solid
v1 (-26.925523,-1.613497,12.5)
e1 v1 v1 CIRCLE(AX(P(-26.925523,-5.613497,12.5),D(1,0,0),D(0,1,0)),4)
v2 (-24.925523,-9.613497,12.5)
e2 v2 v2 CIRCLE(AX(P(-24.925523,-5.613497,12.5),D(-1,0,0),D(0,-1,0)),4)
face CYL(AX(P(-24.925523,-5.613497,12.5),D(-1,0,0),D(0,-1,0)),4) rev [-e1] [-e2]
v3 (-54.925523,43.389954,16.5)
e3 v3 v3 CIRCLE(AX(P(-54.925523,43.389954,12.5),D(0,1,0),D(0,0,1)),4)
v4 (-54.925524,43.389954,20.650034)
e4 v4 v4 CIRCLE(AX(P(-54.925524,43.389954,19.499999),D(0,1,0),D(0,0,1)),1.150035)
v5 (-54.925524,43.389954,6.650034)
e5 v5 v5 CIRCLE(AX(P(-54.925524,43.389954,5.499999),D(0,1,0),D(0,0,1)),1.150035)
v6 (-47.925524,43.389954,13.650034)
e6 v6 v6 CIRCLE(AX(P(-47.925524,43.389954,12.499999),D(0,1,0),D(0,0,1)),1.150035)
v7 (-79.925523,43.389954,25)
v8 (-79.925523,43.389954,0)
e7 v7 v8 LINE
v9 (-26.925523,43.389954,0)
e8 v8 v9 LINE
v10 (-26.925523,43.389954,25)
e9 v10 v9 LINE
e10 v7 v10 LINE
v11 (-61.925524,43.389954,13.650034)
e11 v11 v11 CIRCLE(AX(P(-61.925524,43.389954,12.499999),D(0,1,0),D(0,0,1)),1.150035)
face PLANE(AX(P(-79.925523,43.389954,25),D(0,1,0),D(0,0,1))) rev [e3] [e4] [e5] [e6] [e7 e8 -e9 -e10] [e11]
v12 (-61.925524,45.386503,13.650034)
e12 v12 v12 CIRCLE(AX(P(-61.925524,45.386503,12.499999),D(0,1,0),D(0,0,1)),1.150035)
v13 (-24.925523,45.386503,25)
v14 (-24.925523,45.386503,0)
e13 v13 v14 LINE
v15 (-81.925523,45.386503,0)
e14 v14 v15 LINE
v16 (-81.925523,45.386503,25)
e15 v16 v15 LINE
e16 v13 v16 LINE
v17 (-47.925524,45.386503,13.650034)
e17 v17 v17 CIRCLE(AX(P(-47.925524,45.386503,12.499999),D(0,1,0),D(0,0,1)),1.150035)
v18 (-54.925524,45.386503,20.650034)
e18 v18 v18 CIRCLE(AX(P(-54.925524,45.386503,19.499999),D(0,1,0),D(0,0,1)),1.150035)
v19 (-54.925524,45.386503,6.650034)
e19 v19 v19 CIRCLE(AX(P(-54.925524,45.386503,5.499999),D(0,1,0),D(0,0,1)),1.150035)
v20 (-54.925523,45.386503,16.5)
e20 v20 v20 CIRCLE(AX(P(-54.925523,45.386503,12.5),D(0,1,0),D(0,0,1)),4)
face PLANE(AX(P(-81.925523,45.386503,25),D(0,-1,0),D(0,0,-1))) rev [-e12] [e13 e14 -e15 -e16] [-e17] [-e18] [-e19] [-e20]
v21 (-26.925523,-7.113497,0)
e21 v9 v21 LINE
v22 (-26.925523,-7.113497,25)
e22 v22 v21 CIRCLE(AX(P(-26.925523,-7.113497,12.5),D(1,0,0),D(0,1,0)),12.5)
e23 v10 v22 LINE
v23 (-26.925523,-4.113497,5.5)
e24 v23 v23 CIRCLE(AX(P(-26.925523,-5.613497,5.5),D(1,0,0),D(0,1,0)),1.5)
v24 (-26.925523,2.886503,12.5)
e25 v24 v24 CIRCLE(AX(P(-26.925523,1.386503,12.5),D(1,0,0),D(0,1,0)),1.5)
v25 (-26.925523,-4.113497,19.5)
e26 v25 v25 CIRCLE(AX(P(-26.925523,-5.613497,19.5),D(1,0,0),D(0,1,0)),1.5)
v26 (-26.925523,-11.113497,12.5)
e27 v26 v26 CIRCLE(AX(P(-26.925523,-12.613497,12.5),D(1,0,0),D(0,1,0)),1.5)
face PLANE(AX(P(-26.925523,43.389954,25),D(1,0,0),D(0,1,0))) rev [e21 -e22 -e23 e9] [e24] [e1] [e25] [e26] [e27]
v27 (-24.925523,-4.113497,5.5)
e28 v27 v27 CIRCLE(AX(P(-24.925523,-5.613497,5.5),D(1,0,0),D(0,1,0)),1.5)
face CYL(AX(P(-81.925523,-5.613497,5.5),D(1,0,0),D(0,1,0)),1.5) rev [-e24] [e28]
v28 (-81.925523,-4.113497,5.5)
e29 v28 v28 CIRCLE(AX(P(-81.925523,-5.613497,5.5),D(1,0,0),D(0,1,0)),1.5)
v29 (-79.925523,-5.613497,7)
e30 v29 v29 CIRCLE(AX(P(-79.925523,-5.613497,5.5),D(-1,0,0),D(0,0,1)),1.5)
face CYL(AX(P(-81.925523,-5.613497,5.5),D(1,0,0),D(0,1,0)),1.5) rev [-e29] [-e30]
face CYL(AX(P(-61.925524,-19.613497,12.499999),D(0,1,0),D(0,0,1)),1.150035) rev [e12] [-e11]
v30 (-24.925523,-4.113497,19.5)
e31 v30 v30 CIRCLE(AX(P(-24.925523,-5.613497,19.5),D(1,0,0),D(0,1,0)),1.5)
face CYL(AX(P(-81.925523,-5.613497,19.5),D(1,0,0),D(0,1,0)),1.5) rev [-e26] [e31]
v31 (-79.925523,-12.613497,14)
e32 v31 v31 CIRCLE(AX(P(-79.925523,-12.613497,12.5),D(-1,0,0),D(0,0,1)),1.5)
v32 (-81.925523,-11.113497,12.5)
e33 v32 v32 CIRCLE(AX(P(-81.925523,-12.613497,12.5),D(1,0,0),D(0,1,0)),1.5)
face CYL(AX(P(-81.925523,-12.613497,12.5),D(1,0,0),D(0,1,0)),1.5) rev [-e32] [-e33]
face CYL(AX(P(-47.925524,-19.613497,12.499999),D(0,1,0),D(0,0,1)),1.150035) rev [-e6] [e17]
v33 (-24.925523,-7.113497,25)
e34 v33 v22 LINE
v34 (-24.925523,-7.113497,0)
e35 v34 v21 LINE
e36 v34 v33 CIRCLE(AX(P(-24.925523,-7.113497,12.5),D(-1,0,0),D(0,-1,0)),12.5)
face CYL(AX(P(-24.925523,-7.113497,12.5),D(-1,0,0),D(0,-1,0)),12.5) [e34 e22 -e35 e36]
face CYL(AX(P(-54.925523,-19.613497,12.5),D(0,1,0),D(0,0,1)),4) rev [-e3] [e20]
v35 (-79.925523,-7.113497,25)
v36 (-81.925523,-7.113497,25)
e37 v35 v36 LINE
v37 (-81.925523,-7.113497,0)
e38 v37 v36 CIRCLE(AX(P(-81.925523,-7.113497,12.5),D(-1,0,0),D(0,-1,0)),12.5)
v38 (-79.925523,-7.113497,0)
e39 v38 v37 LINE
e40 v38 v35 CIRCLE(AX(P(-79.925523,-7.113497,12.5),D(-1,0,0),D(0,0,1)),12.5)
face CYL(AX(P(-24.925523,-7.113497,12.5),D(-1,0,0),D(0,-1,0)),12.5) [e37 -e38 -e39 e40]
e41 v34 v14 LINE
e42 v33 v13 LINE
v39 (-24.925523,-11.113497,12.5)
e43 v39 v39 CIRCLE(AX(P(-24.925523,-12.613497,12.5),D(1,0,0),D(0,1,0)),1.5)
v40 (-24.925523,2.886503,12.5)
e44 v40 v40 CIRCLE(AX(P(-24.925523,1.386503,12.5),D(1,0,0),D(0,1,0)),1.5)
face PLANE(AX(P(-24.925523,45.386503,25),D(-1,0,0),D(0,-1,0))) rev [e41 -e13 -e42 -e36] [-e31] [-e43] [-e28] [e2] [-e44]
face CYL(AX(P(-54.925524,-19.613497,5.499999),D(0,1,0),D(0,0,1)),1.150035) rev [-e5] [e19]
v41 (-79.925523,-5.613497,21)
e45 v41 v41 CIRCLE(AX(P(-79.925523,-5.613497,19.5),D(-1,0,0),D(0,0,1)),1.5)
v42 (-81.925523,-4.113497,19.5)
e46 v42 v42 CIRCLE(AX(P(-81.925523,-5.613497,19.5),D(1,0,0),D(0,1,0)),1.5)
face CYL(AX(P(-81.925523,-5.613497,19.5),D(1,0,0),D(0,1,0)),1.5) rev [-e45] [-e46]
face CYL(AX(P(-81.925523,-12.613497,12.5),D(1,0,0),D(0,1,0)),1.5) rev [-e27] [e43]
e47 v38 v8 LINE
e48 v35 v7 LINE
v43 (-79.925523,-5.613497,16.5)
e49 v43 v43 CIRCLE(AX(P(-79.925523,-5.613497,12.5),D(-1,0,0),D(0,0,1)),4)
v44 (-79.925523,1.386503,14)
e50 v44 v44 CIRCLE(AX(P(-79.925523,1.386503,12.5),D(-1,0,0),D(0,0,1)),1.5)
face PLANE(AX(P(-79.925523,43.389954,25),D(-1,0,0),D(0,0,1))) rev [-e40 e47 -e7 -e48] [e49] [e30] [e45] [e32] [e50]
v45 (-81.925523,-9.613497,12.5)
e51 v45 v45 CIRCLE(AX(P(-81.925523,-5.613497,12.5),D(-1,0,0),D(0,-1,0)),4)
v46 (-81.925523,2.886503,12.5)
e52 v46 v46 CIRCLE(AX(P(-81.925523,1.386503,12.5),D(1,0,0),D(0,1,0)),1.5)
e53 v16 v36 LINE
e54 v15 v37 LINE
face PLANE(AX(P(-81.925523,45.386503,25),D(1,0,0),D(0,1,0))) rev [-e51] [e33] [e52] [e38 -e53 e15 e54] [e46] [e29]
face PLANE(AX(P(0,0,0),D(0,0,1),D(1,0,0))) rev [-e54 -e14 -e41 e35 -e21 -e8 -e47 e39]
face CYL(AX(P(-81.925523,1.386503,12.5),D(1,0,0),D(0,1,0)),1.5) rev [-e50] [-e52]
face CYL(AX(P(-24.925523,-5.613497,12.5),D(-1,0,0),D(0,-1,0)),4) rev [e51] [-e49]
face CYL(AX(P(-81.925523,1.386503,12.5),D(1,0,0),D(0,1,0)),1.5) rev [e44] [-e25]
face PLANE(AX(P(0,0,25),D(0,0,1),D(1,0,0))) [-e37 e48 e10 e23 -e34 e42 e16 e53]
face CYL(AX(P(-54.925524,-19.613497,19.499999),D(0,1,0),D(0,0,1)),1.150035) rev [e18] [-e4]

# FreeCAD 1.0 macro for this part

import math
import FreeCAD as App
import Part
import Sketcher

V = App.Vector

doc = App.newDocument("Part")
body = doc.addObject("PartDesign::Body", "Body")

sketch1 = body.newObject("Sketcher::SketchObject", "Sketch")
sketch1.AttachmentSupport = (doc.getObject("XY_Plane"), [""])
sketch1.MapMode = "FlatFace"
sketch1.addGeometry(Part.LineSegment(V(-24.9, 45.4, 0), V(-81.9, 45.4, 0)), False)
sketch1.addGeometry(Part.LineSegment(V(-81.9, 45.4, 0), V(-81.9, -19.6, 0)), False)
sketch1.addGeometry(Part.LineSegment(V(-81.9, -19.6, 0), V(-79.9, -19.6, 0)), False)
sketch1.addGeometry(Part.LineSegment(V(-79.9, -19.6, 0), V(-79.9, 43.4, 0)), False)
sketch1.addGeometry(Part.LineSegment(V(-79.9, 43.4, 0), V(-26.9, 43.4, 0)), False)
sketch1.addGeometry(Part.LineSegment(V(-26.9, 43.4, 0), V(-26.9, -19.6, 0)), False)
sketch1.addGeometry(Part.LineSegment(V(-26.9, -19.6, 0), V(-24.9, -19.6, 0)), False)
sketch1.addGeometry(Part.LineSegment(V(-24.9, -19.6, 0), V(-24.9, 45.4, 0)), False)
sketch1.addConstraint(Sketcher.Constraint("Coincident", 0, 2, 1, 1))
sketch1.addConstraint(Sketcher.Constraint("Coincident", 1, 2, 2, 1))
sketch1.addConstraint(Sketcher.Constraint("Coincident", 2, 2, 3, 1))
sketch1.addConstraint(Sketcher.Constraint("Coincident", 3, 2, 4, 1))
sketch1.addConstraint(Sketcher.Constraint("Coincident", 4, 2, 5, 1))
sketch1.addConstraint(Sketcher.Constraint("Coincident", 5, 2, 6, 1))
sketch1.addConstraint(Sketcher.Constraint("Coincident", 6, 2, 7, 1))
sketch1.addConstraint(Sketcher.Constraint("Coincident", 7, 2, 0, 1))
sketch1.addConstraint(Sketcher.Constraint("Horizontal", 0))
sketch1.addConstraint(Sketcher.Constraint("Vertical", 1))
sketch1.addConstraint(Sketcher.Constraint("Horizontal", 2))
sketch1.addConstraint(Sketcher.Constraint("Vertical", 3))
sketch1.addConstraint(Sketcher.Constraint("Horizontal", 4))
sketch1.addConstraint(Sketcher.Constraint("Vertical", 5))
sketch1.addConstraint(Sketcher.Constraint("Horizontal", 6))
sketch1.addConstraint(Sketcher.Constraint("Vertical", 7))
sketch1.addConstraint(Sketcher.Constraint("Horizontal", 2, 2, 5, 2))
sketch1.addConstraint(Sketcher.Constraint("Equal", 2, 6))
sketch1.addConstraint(Sketcher.Constraint("DistanceX", 0, 2, 0, 1, 57.0))
sketch1.addConstraint(Sketcher.Constraint("DistanceX", 2, 1, 2, 2, 2.0))
sketch1.addConstraint(Sketcher.Constraint("DistanceY", 1, 2, 1, 1, 65.0))
sketch1.addConstraint(Sketcher.Constraint("DistanceY", 3, 1, 3, 2, 63.003451))
sketch1.addConstraint(Sketcher.Constraint("DistanceX", 0, 2, -1, 1, 81.925523))
sketch1.addConstraint(Sketcher.Constraint("DistanceY", -1, 1, 0, 2, 45.386503))
pad1 = body.newObject("PartDesign::Pad", "Pad")
pad1.Profile = sketch1
pad1.Length = 25

sketch2 = body.newObject("Sketcher::SketchObject", "Sketch001")
sketch2.AttachmentSupport = (doc.getObject("XZ_Plane"), [""])
sketch2.MapMode = "FlatFace"
sketch2.AttachmentOffset = App.Placement(V(0, 0, -45.386503), App.Rotation())
sketch2.addGeometry(Part.Circle(V(-54.9, 12.5, 0), V(0, 0, 1), 4), False)
sketch2.addConstraint(Sketcher.Constraint("Diameter", 0, 8.0))
sketch2.addConstraint(Sketcher.Constraint("DistanceY", -1, 1, 0, 3, 12.5))
sketch2.addConstraint(Sketcher.Constraint("DistanceX", 0, 3, -1, 1, 54.925523))
pocket1 = body.newObject("PartDesign::Pocket", "Pocket")
pocket1.Profile = sketch2
pocket1.Type = "ThroughAll"
pocket1.Reversed = True

sketch3 = body.newObject("Sketcher::SketchObject", "Sketch002")
sketch3.AttachmentSupport = (doc.getObject("YZ_Plane"), [""])
sketch3.MapMode = "FlatFace"
sketch3.AttachmentOffset = App.Placement(V(0, 0, -81.925523), App.Rotation())
sketch3.addGeometry(Part.Circle(V(-5.6, 12.5, 0), V(0, 0, 1), 4), False)
sketch3.addConstraint(Sketcher.Constraint("Diameter", 0, 8.0))
sketch3.addConstraint(Sketcher.Constraint("DistanceY", -1, 1, 0, 3, 12.5))
sketch3.addConstraint(Sketcher.Constraint("DistanceX", 0, 3, -1, 1, 5.613497))
pocket2 = body.newObject("PartDesign::Pocket", "Pocket001")
pocket2.Profile = sketch3
pocket2.Type = "ThroughAll"
pocket2.Reversed = True

sketch4 = body.newObject("Sketcher::SketchObject", "Sketch003")
sketch4.AttachmentSupport = (doc.getObject("YZ_Plane"), [""])
sketch4.MapMode = "FlatFace"
sketch4.AttachmentOffset = App.Placement(V(0, 0, -81.925523), App.Rotation())
sketch4.addGeometry(Part.LineSegment(V(-20, 0, 0), V(-20, 12, 0)), False)
sketch4.addGeometry(Part.ArcOfCircle(Part.Circle(V(-7, 12, 0), V(0, 0, 1), 12), math.radians(180), math.radians(270)), False)
sketch4.addGeometry(Part.LineSegment(V(-7, 0, 0), V(-20, 0, 0)), False)
sketch4.addGeometry(Part.LineSegment(V(-20, 12, 0), V(-20, 25, 0)), False)
sketch4.addGeometry(Part.LineSegment(V(-20, 25, 0), V(-7, 25, 0)), False)
sketch4.addGeometry(Part.ArcOfCircle(Part.Circle(V(-7, 13, 0), V(0, 0, 1), 12), math.radians(90), math.radians(180)), False)
sketch4.addConstraint(Sketcher.Constraint("Tangent", 0, 2, 1, 1))
sketch4.addConstraint(Sketcher.Constraint("Tangent", 1, 2, 2, 1))
sketch4.addConstraint(Sketcher.Constraint("Coincident", 2, 2, 0, 1))
sketch4.addConstraint(Sketcher.Constraint("Coincident", 3, 2, 4, 1))
sketch4.addConstraint(Sketcher.Constraint("Tangent", 4, 2, 5, 1))
sketch4.addConstraint(Sketcher.Constraint("Tangent", 5, 2, 3, 1))
sketch4.addConstraint(Sketcher.Constraint("Vertical", 0))
sketch4.addConstraint(Sketcher.Constraint("Horizontal", 2))
sketch4.addConstraint(Sketcher.Constraint("Vertical", 3))
sketch4.addConstraint(Sketcher.Constraint("Horizontal", 4))
sketch4.addConstraint(Sketcher.Constraint("Coincident", 5, 3, 1, 3))
sketch4.addConstraint(Sketcher.Constraint("Equal", 1, 5))
sketch4.addConstraint(Sketcher.Constraint("PointOnObject", 1, 2, -1))
sketch4.addConstraint(Sketcher.Constraint("Radius", 1, 12.5))
sketch4.addConstraint(Sketcher.Constraint("DistanceX", 1, 3, -1, 1, 7.113497))
pocket3 = body.newObject("PartDesign::Pocket", "Pocket002")
pocket3.Profile = sketch4
pocket3.Type = "ThroughAll"
pocket3.Reversed = True

sketch5 = body.newObject("Sketcher::SketchObject", "Sketch004")
sketch5.AttachmentSupport = (doc.getObject("YZ_Plane"), [""])
sketch5.MapMode = "FlatFace"
sketch5.AttachmentOffset = App.Placement(V(0, 0, -24.925523), App.Rotation())
sketch5.addGeometry(Part.Circle(V(1.4, 12.5, 0), V(0, 0, 1), 1.5), False)
sketch5.addGeometry(Part.Circle(V(-5.6, 5.5, 0), V(0, 0, 1), 1.5), False)
sketch5.addGeometry(Part.Circle(V(-12.6, 12.5, 0), V(0, 0, 1), 1.5), False)
sketch5.addGeometry(Part.Circle(V(-5.6, 19.5, 0), V(0, 0, 1), 1.5), False)
sketch5.addConstraint(Sketcher.Constraint("Equal", 0, 1))
sketch5.addConstraint(Sketcher.Constraint("Equal", 1, 2))
sketch5.addConstraint(Sketcher.Constraint("Equal", 2, 3))
sketch5.addConstraint(Sketcher.Constraint("Horizontal", 0, 3, 2, 3))
sketch5.addConstraint(Sketcher.Constraint("Vertical", 1, 3, 3, 3))
sketch5.addConstraint(Sketcher.Constraint("Diameter", 0, 3.0))
sketch5.addConstraint(Sketcher.Constraint("DistanceX", 1, 3, 0, 3, 7.0))
sketch5.addConstraint(Sketcher.Constraint("DistanceY", 1, 3, 0, 3, 7.0))
sketch5.addConstraint(Sketcher.Constraint("DistanceX", 2, 3, 1, 3, 7.0))
sketch5.addConstraint(Sketcher.Constraint("DistanceY", 0, 3, 3, 3, 7.0))
sketch5.addConstraint(Sketcher.Constraint("DistanceY", -1, 1, 0, 3, 12.5))
sketch5.addConstraint(Sketcher.Constraint("DistanceX", -1, 1, 0, 3, 1.386503))
pocket4 = body.newObject("PartDesign::Pocket", "Pocket003")
pocket4.Profile = sketch5
pocket4.Type = "ThroughAll"

sketch6 = body.newObject("Sketcher::SketchObject", "Sketch005")
sketch6.AttachmentSupport = (doc.getObject("XZ_Plane"), [""])
sketch6.MapMode = "FlatFace"
sketch6.AttachmentOffset = App.Placement(V(0, 0, -45.386503), App.Rotation())
sketch6.addGeometry(Part.Circle(V(-54.9, 19.5, 0), V(0, 0, 1), 1.2), False)
sketch6.addGeometry(Part.Circle(V(-61.9, 12.5, 0), V(0, 0, 1), 1.2), False)
sketch6.addGeometry(Part.Circle(V(-54.9, 5.5, 0), V(0, 0, 1), 1.2), False)
sketch6.addGeometry(Part.Circle(V(-47.9, 12.5, 0), V(0, 0, 1), 1.2), False)
sketch6.addConstraint(Sketcher.Constraint("Equal", 0, 1))
sketch6.addConstraint(Sketcher.Constraint("Equal", 1, 2))
sketch6.addConstraint(Sketcher.Constraint("Equal", 2, 3))
sketch6.addConstraint(Sketcher.Constraint("Horizontal", 1, 3, 3, 3))
sketch6.addConstraint(Sketcher.Constraint("Vertical", 0, 3, 2, 3))
sketch6.addConstraint(Sketcher.Constraint("DistanceX", 1, 3, 0, 3, 7.0))
sketch6.addConstraint(Sketcher.Constraint("DistanceY", 1, 3, 0, 3, 7.0))
sketch6.addConstraint(Sketcher.Constraint("DistanceY", 2, 3, 1, 3, 7.0))
sketch6.addConstraint(Sketcher.Constraint("DistanceX", 0, 3, 3, 3, 7.0))
sketch6.addConstraint(Sketcher.Constraint("DistanceY", -1, 1, 0, 3, 19.499999))
sketch6.addConstraint(Sketcher.Constraint("Diameter", 0, 2.30007))
sketch6.addConstraint(Sketcher.Constraint("DistanceX", 0, 3, -1, 1, 54.925524))
pocket5 = body.newObject("PartDesign::Pocket", "Pocket004")
pocket5.Profile = sketch6
pocket5.Type = "ThroughAll"
pocket5.Reversed = True

doc.recompute()
